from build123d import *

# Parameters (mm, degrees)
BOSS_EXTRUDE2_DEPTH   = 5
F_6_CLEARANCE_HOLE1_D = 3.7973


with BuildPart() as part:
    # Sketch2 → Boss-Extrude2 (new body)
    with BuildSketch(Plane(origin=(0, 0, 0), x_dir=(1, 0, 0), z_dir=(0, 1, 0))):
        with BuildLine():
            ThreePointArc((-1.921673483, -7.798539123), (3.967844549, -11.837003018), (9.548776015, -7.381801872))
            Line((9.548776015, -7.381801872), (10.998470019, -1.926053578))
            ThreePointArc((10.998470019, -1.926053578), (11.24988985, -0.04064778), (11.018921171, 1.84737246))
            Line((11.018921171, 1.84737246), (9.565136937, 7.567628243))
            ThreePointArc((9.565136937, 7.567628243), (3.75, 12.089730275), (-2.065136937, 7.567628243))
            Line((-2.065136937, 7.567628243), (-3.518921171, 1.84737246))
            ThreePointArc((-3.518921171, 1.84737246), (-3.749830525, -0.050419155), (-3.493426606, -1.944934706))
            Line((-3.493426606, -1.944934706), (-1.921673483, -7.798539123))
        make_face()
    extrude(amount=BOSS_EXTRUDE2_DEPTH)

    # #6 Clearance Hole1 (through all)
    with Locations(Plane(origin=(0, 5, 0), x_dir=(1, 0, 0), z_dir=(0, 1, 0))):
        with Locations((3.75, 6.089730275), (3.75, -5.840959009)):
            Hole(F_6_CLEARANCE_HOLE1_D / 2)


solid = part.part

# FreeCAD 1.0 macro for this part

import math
import FreeCAD as App
import Part
import Sketcher
from FreeCAD import Vector
Q = App.Units.Quantity

doc = App.newDocument("Part")
body = doc.addObject("PartDesign::Body", "Body")

# Sketch on XZ plane
sketch1 = body.newObject("Sketcher::SketchObject", "Sketch")
sketch1.AttachmentSupport = (doc.getObject("XZ_Plane"), [""])
sketch1.MapMode = "FlatFace"
sketch1.addGeometry([
    Part.ArcOfCircle(Part.Circle(Vector(3.75, 5.840959, 0), Vector(0, 0, 1), 6), math.radians(14.880693), math.radians(160.957868)),  # 0
    Part.LineSegment(Vector(9.548776, 7.381802, 0), Vector(10.99847, 1.926054, 0)),  # 1
    Part.ArcOfCircle(Part.Circle(Vector(3.75, 0, 0), Vector(0, 0, 1), 7.5), math.radians(-14.259638), math.radians(14.880693)),  # 2
    Part.LineSegment(Vector(11.018921, -1.847372, 0), Vector(9.565137, -7.567628, 0)),  # 3
    Part.ArcOfCircle(Part.Circle(Vector(3.75, -6.08973, 0), Vector(0, 0, 1), 6), math.radians(-165.740362), math.radians(-14.259638)),  # 4
    Part.LineSegment(Vector(-2.065137, -7.567628, 0), Vector(-3.518921, -1.847372, 0)),  # 5
    Part.ArcOfCircle(Part.Circle(Vector(3.75, 0, 0), Vector(0, 0, 1), 7.5), math.radians(164.970008), math.radians(194.259638)),  # 6
    Part.LineSegment(Vector(-3.493427, 1.944935, 0), Vector(-1.921673, 7.798539, 0)),  # 7
], False)
sketch1.addConstraint([
    Sketcher.Constraint("Tangent", 0, 1, 1, 1),
    Sketcher.Constraint("Tangent", 1, 2, 2, 2),
    Sketcher.Constraint("Tangent", 2, 1, 3, 1),
    Sketcher.Constraint("Tangent", 3, 2, 4, 2),
    Sketcher.Constraint("Tangent", 4, 1, 5, 1),
    Sketcher.Constraint("Tangent", 5, 2, 6, 2),
    Sketcher.Constraint("Tangent", 6, 1, 7, 1),
    Sketcher.Constraint("Coincident", 7, 2, 0, 2),
    Sketcher.Constraint("Coincident", 6, 3, 2, 3),
    Sketcher.Constraint("Equal", 0, 4),
    Sketcher.Constraint("Equal", 2, 6),
    Sketcher.Constraint("PointOnObject", 2, 3, -1),
    Sketcher.Constraint("Horizontal", 3, 2, 4, 1),
    Sketcher.Constraint("Vertical", 0, 3, 2, 3),
    Sketcher.Constraint("Radius", 0, Q("6 mm")),
    Sketcher.Constraint("Radius", 2, Q("7.5 mm")),
    Sketcher.Constraint("Angle", 7, Q("74.970008 deg")),
    Sketcher.Constraint("DistanceX", -1, 1, 0, 3, Q("3.75 mm")),
    Sketcher.Constraint("DistanceY", -1, 1, 0, 1, Q("7.381802 mm")),
    Sketcher.Constraint("DistanceY", 4, 3, -1, 1, Q("6.08973 mm")),
])
pad1 = body.newObject("PartDesign::Pad", "Pad")
pad1.Profile = sketch1
pad1.Length = 5
pad1.Reversed = True

# Sketch on XZ plane
sketch2 = body.newObject("Sketcher::SketchObject", "Sketch001")
sketch2.AttachmentSupport = (doc.getObject("XZ_Plane"), [""])
sketch2.MapMode = "FlatFace"
sketch2.AttachmentOffset = App.Placement(Vector(0, 0, -5), App.Rotation())
sketch2.addGeometry([
    Part.Circle(Vector(3.75, -6.08973, 0), Vector(0, 0, 1), 1.89865),
    Part.Circle(Vector(3.75, 5.840959, 0), Vector(0, 0, 1), 1.89865),
], False)
sketch2.addConstraint([
    Sketcher.Constraint("Equal", 0, 1),
    Sketcher.Constraint("Vertical", 0, 3, 1, 3),
    Sketcher.Constraint("Diameter", 0, Q("3.7973 mm")),
    Sketcher.Constraint("DistanceX", -1, 1, 0, 3, Q("3.75 mm")),
    Sketcher.Constraint("DistanceY", 0, 3, -1, 1, Q("6.08973 mm")),
    Sketcher.Constraint("DistanceY", -1, 1, 1, 3, Q("5.840959 mm")),
])
doc.recompute()
hole = body.newObject("PartDesign::Hole", "Hole")
hole.Profile = sketch2
hole.ThreadType = "None"
hole.Diameter = 3.7973
hole.DepthType = "ThroughAll"
hole.Reversed = True

doc.recompute()
